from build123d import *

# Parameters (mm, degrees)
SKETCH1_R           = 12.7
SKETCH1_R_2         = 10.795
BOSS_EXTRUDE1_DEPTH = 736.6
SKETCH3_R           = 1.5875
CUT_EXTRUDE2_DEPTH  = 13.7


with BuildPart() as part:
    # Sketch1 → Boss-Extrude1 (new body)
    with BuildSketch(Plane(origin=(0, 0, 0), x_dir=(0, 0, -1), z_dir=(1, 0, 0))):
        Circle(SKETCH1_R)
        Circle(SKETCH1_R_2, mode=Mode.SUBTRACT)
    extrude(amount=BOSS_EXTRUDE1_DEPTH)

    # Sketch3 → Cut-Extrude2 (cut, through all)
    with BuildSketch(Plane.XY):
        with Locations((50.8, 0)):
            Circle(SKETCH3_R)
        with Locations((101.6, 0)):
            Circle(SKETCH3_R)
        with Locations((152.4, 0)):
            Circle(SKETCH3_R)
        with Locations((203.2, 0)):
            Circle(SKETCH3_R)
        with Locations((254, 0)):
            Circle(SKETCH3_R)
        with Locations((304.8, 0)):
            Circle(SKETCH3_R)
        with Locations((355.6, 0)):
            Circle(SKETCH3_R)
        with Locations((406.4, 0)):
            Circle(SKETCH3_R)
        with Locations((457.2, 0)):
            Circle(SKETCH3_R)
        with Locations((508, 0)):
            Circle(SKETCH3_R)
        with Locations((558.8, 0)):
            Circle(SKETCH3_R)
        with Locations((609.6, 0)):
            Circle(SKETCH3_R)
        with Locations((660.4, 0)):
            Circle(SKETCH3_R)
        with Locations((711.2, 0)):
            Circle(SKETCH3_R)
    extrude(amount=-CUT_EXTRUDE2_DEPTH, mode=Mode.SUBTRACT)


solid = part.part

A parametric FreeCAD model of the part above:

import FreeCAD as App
import Part
import Sketcher

V = App.Vector
Q = App.Units.Quantity

doc = App.newDocument("Part")
body = doc.addObject("PartDesign::Body", "Body")

# Sketch on YZ plane
sketch1 = body.newObject("Sketcher::SketchObject", "Sketch")
sketch1.AttachmentSupport = (doc.getObject("YZ_Plane"), [""])
sketch1.MapMode = "FlatFace"
sketch1.addGeometry(Part.Circle(V(0, 0, 0), V(0, 0, 1), 12.7), False)
sketch1.addGeometry(Part.Circle(V(0, 0, 0), V(0, 0, 1), 10.795), False)
sketch1.addConstraint(Sketcher.Constraint("Coincident", 0, 3, -1, 1))
sketch1.addConstraint(Sketcher.Constraint("Coincident", 1, 3, -1, 1))
sketch1.addConstraint(Sketcher.Constraint("Diameter", 0, Q("1 in")))
sketch1.addConstraint(Sketcher.Constraint("Diameter", 1, Q("0.85 in")))
pad1 = body.newObject("PartDesign::Pad", "Pad")
pad1.Profile = sketch1
pad1.Length = Q("29 in")

# Sketch on XY plane
sketch2 = body.newObject("Sketcher::SketchObject", "Sketch001")
sketch2.AttachmentSupport = (doc.getObject("XY_Plane"), [""])
sketch2.MapMode = "FlatFace"
sketch2.addGeometry(Part.Circle(V(50.8, 0, 0), V(0, 0, 1), 1.5875), False)
sketch2.addGeometry(Part.Circle(V(101.6, 0, 0), V(0, 0, 1), 1.5875), False)
sketch2.addGeometry(Part.Circle(V(152.4, 0, 0), V(0, 0, 1), 1.5875), False)
sketch2.addGeometry(Part.Circle(V(203.2, 0, 0), V(0, 0, 1), 1.5875), False)
sketch2.addGeometry(Part.Circle(V(254, 0, 0), V(0, 0, 1), 1.5875), False)
sketch2.addGeometry(Part.Circle(V(304.8, 0, 0), V(0, 0, 1), 1.5875), False)
sketch2.addGeometry(Part.Circle(V(355.6, 0, 0), V(0, 0, 1), 1.5875), False)
sketch2.addGeometry(Part.Circle(V(406.4, 0, 0), V(0, 0, 1), 1.5875), False)
sketch2.addGeometry(Part.Circle(V(457.2, 0, 0), V(0, 0, 1), 1.5875), False)
sketch2.addGeometry(Part.Circle(V(508, 0, 0), V(0, 0, 1), 1.5875), False)
sketch2.addGeometry(Part.Circle(V(558.8, 0, 0), V(0, 0, 1), 1.5875), False)
sketch2.addGeometry(Part.Circle(V(609.6, 0, 0), V(0, 0, 1), 1.5875), False)
sketch2.addGeometry(Part.Circle(V(660.4, 0, 0), V(0, 0, 1), 1.5875), False)
sketch2.addGeometry(Part.Circle(V(711.2, 0, 0), V(0, 0, 1), 1.5875), False)
sketch2.addConstraint(Sketcher.Constraint("Equal", 0, 1))
sketch2.addConstraint(Sketcher.Constraint("Equal", 1, 2))
sketch2.addConstraint(Sketcher.Constraint("Equal", 2, 3))
sketch2.addConstraint(Sketcher.Constraint("Equal", 3, 4))
sketch2.addConstraint(Sketcher.Constraint("Equal", 4, 5))
sketch2.addConstraint(Sketcher.Constraint("Equal", 5, 6))
sketch2.addConstraint(Sketcher.Constraint("Equal", 6, 7))
sketch2.addConstraint(Sketcher.Constraint("Equal", 7, 8))
sketch2.addConstraint(Sketcher.Constraint("Equal", 8, 9))
sketch2.addConstraint(Sketcher.Constraint("Equal", 9, 10))
sketch2.addConstraint(Sketcher.Constraint("Equal", 10, 11))
sketch2.addConstraint(Sketcher.Constraint("Equal", 11, 12))
sketch2.addConstraint(Sketcher.Constraint("Equal", 12, 13))
sketch2.addConstraint(Sketcher.Constraint("PointOnObject", 0, 3, -1))
sketch2.addConstraint(Sketcher.Constraint("PointOnObject", 1, 3, -1))
sketch2.addConstraint(Sketcher.Constraint("PointOnObject", 2, 3, -1))
sketch2.addConstraint(Sketcher.Constraint("PointOnObject", 3, 3, -1))
sketch2.addConstraint(Sketcher.Constraint("PointOnObject", 4, 3, -1))
sketch2.addConstraint(Sketcher.Constraint("PointOnObject", 5, 3, -1))
sketch2.addConstraint(Sketcher.Constraint("PointOnObject", 6, 3, -1))
sketch2.addConstraint(Sketcher.Constraint("PointOnObject", 7, 3, -1))
sketch2.addConstraint(Sketcher.Constraint("PointOnObject", 8, 3, -1))
sketch2.addConstraint(Sketcher.Constraint("PointOnObject", 9, 3, -1))
sketch2.addConstraint(Sketcher.Constraint("PointOnObject", 10, 3, -1))
sketch2.addConstraint(Sketcher.Constraint("PointOnObject", 11, 3, -1))
sketch2.addConstraint(Sketcher.Constraint("PointOnObject", 12, 3, -1))
sketch2.addConstraint(Sketcher.Constraint("PointOnObject", 13, 3, -1))
sketch2.addConstraint(Sketcher.Constraint("Diameter", 0, Q("0.125 in")))
sketch2.addConstraint(Sketcher.Constraint("DistanceX", -1, 1, 0, 3, Q("2 in")))
sketch2.addConstraint(Sketcher.Constraint("DistanceX", -1, 1, 1, 3, Q("4 in")))
sketch2.addConstraint(Sketcher.Constraint("DistanceX", -1, 1, 2, 3, Q("6 in")))
sketch2.addConstraint(Sketcher.Constraint("DistanceX", -1, 1, 3, 3, Q("8 in")))
sketch2.addConstraint(Sketcher.Constraint("DistanceX", -1, 1, 4, 3, Q("10 in")))
sketch2.addConstraint(Sketcher.Constraint("DistanceX", -1, 1, 5, 3, Q("12 in")))
sketch2.addConstraint(Sketcher.Constraint("DistanceX", -1, 1, 6, 3, Q("14 in")))
sketch2.addConstraint(Sketcher.Constraint("DistanceX", -1, 1, 7, 3, Q("16 in")))
sketch2.addConstraint(Sketcher.Constraint("DistanceX", -1, 1, 8, 3, Q("18 in")))
sketch2.addConstraint(Sketcher.Constraint("DistanceX", -1, 1, 9, 3, Q("20 in")))
sketch2.addConstraint(Sketcher.Constraint("DistanceX", -1, 1, 10, 3, Q("22 in")))
sketch2.addConstraint(Sketcher.Constraint("DistanceX", -1, 1, 11, 3, Q("24 in")))
sketch2.addConstraint(Sketcher.Constraint("DistanceX", -1, 1, 12, 3, Q("26 in")))
sketch2.addConstraint(Sketcher.Constraint("DistanceX", -1, 1, 13, 3, Q("28 in")))
pocket1 = body.newObject("PartDesign::Pocket", "Pocket")
pocket1.Profile = sketch2
pocket1.Type = "ThroughAll"

doc.recompute()
